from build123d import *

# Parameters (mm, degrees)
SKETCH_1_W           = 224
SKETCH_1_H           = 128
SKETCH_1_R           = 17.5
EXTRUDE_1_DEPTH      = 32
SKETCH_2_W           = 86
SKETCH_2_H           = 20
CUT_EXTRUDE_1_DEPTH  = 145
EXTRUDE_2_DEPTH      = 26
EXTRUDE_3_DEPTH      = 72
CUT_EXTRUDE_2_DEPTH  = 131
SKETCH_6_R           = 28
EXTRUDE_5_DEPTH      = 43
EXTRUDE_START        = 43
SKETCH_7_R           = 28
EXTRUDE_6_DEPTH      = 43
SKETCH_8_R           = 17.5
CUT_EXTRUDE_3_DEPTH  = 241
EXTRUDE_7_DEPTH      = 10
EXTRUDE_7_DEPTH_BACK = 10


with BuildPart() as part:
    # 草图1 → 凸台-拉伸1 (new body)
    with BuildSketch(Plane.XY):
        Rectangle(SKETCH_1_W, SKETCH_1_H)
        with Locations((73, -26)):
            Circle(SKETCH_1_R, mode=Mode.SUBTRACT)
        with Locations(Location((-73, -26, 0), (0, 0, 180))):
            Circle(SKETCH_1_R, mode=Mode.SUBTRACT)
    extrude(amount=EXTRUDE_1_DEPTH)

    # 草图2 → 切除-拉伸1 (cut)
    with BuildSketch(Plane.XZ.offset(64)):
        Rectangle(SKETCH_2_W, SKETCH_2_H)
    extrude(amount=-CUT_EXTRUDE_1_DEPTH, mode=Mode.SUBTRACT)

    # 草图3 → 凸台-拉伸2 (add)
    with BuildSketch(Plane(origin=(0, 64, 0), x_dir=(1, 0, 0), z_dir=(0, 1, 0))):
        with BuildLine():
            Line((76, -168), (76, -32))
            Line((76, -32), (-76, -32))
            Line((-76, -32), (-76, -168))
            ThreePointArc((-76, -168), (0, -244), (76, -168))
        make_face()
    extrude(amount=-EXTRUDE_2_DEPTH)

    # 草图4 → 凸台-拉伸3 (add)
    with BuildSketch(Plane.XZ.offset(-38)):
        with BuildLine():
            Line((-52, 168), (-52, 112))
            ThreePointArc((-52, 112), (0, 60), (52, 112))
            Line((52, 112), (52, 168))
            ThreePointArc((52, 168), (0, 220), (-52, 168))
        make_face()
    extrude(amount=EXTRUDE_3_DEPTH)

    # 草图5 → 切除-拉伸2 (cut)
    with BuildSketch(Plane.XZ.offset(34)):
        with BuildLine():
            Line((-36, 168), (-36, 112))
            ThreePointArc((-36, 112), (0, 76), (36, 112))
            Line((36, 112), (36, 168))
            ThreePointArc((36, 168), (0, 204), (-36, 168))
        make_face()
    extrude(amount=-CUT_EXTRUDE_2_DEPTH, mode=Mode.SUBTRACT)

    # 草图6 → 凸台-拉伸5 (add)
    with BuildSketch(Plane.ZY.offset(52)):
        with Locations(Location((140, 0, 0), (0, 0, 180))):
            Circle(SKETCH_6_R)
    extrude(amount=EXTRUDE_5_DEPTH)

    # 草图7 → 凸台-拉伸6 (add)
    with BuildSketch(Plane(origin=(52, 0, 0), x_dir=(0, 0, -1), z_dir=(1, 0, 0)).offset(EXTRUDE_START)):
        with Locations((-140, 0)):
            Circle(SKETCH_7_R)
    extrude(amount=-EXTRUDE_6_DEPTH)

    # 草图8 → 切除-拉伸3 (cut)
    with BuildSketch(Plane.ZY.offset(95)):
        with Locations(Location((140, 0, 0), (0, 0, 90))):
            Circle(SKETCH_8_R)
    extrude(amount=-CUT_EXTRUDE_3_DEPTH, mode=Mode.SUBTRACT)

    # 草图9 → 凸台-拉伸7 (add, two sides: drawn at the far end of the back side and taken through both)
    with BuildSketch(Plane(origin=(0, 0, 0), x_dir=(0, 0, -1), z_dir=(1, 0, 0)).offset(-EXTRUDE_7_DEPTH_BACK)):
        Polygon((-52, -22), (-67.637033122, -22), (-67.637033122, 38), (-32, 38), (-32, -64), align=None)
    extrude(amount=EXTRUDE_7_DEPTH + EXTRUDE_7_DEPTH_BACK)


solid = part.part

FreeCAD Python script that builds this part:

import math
import FreeCAD as App
import Part
import Sketcher
from FreeCAD import Vector


def add_polygon(sketch, points):
    """Adds a closed chain of lines whose ends are joined by coincident constraints."""
    first, n = sketch.GeometryCount, len(points)
    for a, b in zip(points, points[1:] + points[:1]):
        sketch.addGeometry(Part.LineSegment(App.Vector(*a, 0), App.Vector(*b, 0)), False)
    for i in range(n):
        sketch.addConstraint(Sketcher.Constraint("Coincident", first + i, 2, first + (i + 1) % n, 1))

doc = App.newDocument("Part")
body = doc.addObject("PartDesign::Body", "Body")

sketch1 = doc.addObject("Sketcher::SketchObject", "Sketch")
body.addObject(sketch1)
sketch1.AttachmentSupport = (doc.XY_Plane, [""])
sketch1.MapMode = "FlatFace"
add_polygon(sketch1, [(-112, 64), (-112, -64), (112, -64), (112, 64)])
sketch1.addGeometry(Part.Circle(Vector(-73, -26, 0), Vector(0, 0, 1), 18), False)
sketch1.addGeometry(Part.Circle(Vector(73, -26, 0), Vector(0, 0, 1), 18), False)
sketch1.addConstraint(Sketcher.Constraint("Vertical", 0))
sketch1.addConstraint(Sketcher.Constraint("Horizontal", 1))
sketch1.addConstraint(Sketcher.Constraint("Vertical", 2))
sketch1.addConstraint(Sketcher.Constraint("Horizontal", 3))
sketch1.addConstraint(Sketcher.Constraint("Equal", 4, 5))
sketch1.addConstraint(Sketcher.Constraint("Symmetric", 0, 2, 2, 2, -1, 1))
sketch1.addConstraint(Sketcher.Constraint("Symmetric", 4, 3, 5, 3, -2))
sketch1.addConstraint(Sketcher.Constraint("Diameter", 4, 35.0))
sketch1.addConstraint(Sketcher.Constraint("DistanceX", 1, 1, 1, 2, 224.0))
sketch1.addConstraint(Sketcher.Constraint("DistanceY", 0, 2, 0, 1, 128.0))
sketch1.addConstraint(Sketcher.Constraint("DistanceX", 4, 3, -1, 1, 73.0))
sketch1.addConstraint(Sketcher.Constraint("DistanceY", 4, 3, -1, 1, 26.0))
pad1 = doc.addObject("PartDesign::Pad", "Pad")
body.addObject(pad1)
pad1.Profile = sketch1
pad1.Length = 32

sketch2 = doc.addObject("Sketcher::SketchObject", "Sketch001")
body.addObject(sketch2)
sketch2.AttachmentSupport = (doc.XZ_Plane, [""])
sketch2.MapMode = "FlatFace"
sketch2.AttachmentOffset = App.Placement(Vector(0, 0, 64), App.Rotation())
add_polygon(sketch2, [(-43, 10), (-43, -10), (43, -10), (43, 10)])
sketch2.addConstraint(Sketcher.Constraint("Vertical", 0))
sketch2.addConstraint(Sketcher.Constraint("Horizontal", 1))
sketch2.addConstraint(Sketcher.Constraint("Vertical", 2))
sketch2.addConstraint(Sketcher.Constraint("Horizontal", 3))
sketch2.addConstraint(Sketcher.Constraint("Symmetric", 0, 2, 2, 2, -1, 1))
sketch2.addConstraint(Sketcher.Constraint("DistanceX", 1, 1, 1, 2, 86.0))
sketch2.addConstraint(Sketcher.Constraint("DistanceY", 0, 2, 0, 1, 20.0))
pocket1 = doc.addObject("PartDesign::Pocket", "Pocket")
body.addObject(pocket1)
pocket1.Profile = sketch2
pocket1.Length = 145

sketch3 = doc.addObject("Sketcher::SketchObject", "Sketch002")
body.addObject(sketch3)
sketch3.AttachmentSupport = (doc.XZ_Plane, [""])
sketch3.MapMode = "FlatFace"
sketch3.AttachmentOffset = App.Placement(Vector(0, 0, -64), App.Rotation())
sketch3.addGeometry(Part.LineSegment(Vector(76, 168, 0), Vector(76, 32, 0)), False)
sketch3.addGeometry(Part.LineSegment(Vector(76, 32, 0), Vector(-76, 32, 0)), False)
sketch3.addGeometry(Part.LineSegment(Vector(-76, 32, 0), Vector(-76, 168, 0)), False)
sketch3.addGeometry(Part.ArcOfCircle(Part.Circle(Vector(0, 168, 0), Vector(0, 0, 1), 76), math.radians(0), math.radians(180)), False)
sketch3.addConstraint(Sketcher.Constraint("Coincident", 0, 2, 1, 1))
sketch3.addConstraint(Sketcher.Constraint("Coincident", 1, 2, 2, 1))
sketch3.addConstraint(Sketcher.Constraint("Tangent", 2, 2, 3, 2))
sketch3.addConstraint(Sketcher.Constraint("Tangent", 3, 1, 0, 1))
sketch3.addConstraint(Sketcher.Constraint("Vertical", 0))
sketch3.addConstraint(Sketcher.Constraint("Horizontal", 1))
sketch3.addConstraint(Sketcher.Constraint("Vertical", 2))
sketch3.addConstraint(Sketcher.Constraint("PointOnObject", 3, 3, -2))
sketch3.addConstraint(Sketcher.Constraint("Radius", 3, 76.0))
sketch3.addConstraint(Sketcher.Constraint("DistanceY", 0, 2, 0, 1, 136.0))
sketch3.addConstraint(Sketcher.Constraint("DistanceY", -1, 1, 3, 3, 168.0))
pad2 = doc.addObject("PartDesign::Pad", "Pad001")
body.addObject(pad2)
pad2.Profile = sketch3
pad2.Length = 26

sketch4 = doc.addObject("Sketcher::SketchObject", "Sketch003")
body.addObject(sketch4)
sketch4.AttachmentSupport = (doc.XZ_Plane, [""])
sketch4.MapMode = "FlatFace"
sketch4.AttachmentOffset = App.Placement(Vector(0, 0, -38), App.Rotation())
sketch4.addGeometry(Part.LineSegment(Vector(-52, 168, 0), Vector(-52, 112, 0)), False)
sketch4.addGeometry(Part.ArcOfCircle(Part.Circle(Vector(0, 112, 0), Vector(0, 0, 1), 52), math.radians(180), math.radians(360)), False)
sketch4.addGeometry(Part.LineSegment(Vector(52, 112, 0), Vector(52, 168, 0)), False)
sketch4.addGeometry(Part.ArcOfCircle(Part.Circle(Vector(0, 168, 0), Vector(0, 0, 1), 52), math.radians(0), math.radians(180)), False)
sketch4.addConstraint(Sketcher.Constraint("Tangent", 0, 2, 1, 1))
sketch4.addConstraint(Sketcher.Constraint("Tangent", 1, 2, 2, 1))
sketch4.addConstraint(Sketcher.Constraint("Tangent", 2, 2, 3, 1))
sketch4.addConstraint(Sketcher.Constraint("Tangent", 3, 2, 0, 1))
sketch4.addConstraint(Sketcher.Constraint("Vertical", 0))
sketch4.addConstraint(Sketcher.Constraint("Vertical", 2))
sketch4.addConstraint(Sketcher.Constraint("PointOnObject", 1, 3, -2))
sketch4.addConstraint(Sketcher.Constraint("Radius", 1, 52.0))
sketch4.addConstraint(Sketcher.Constraint("DistanceY", 0, 2, 0, 1, 56.0))
sketch4.addConstraint(Sketcher.Constraint("DistanceY", -1, 1, 1, 3, 112.0))
pad3 = doc.addObject("PartDesign::Pad", "Pad002")
body.addObject(pad3)
pad3.Profile = sketch4
pad3.Length = 72

sketch5 = doc.addObject("Sketcher::SketchObject", "Sketch004")
body.addObject(sketch5)
sketch5.AttachmentSupport = (doc.XZ_Plane, [""])
sketch5.MapMode = "FlatFace"
sketch5.AttachmentOffset = App.Placement(Vector(0, 0, 34), App.Rotation())
sketch5.addGeometry(Part.LineSegment(Vector(-36, 168, 0), Vector(-36, 112, 0)), False)
sketch5.addGeometry(Part.ArcOfCircle(Part.Circle(Vector(0, 112, 0), Vector(0, 0, 1), 36), math.radians(180), math.radians(360)), False)
sketch5.addGeometry(Part.LineSegment(Vector(36, 112, 0), Vector(36, 168, 0)), False)
sketch5.addGeometry(Part.ArcOfCircle(Part.Circle(Vector(0, 168, 0), Vector(0, 0, 1), 36), math.radians(0), math.radians(180)), False)
sketch5.addConstraint(Sketcher.Constraint("Tangent", 0, 2, 1, 1))
sketch5.addConstraint(Sketcher.Constraint("Tangent", 1, 2, 2, 1))
sketch5.addConstraint(Sketcher.Constraint("Tangent", 2, 2, 3, 1))
sketch5.addConstraint(Sketcher.Constraint("Tangent", 3, 2, 0, 1))
sketch5.addConstraint(Sketcher.Constraint("Vertical", 0))
sketch5.addConstraint(Sketcher.Constraint("Vertical", 2))
sketch5.addConstraint(Sketcher.Constraint("PointOnObject", 1, 3, -2))
sketch5.addConstraint(Sketcher.Constraint("Radius", 1, 36.0))
sketch5.addConstraint(Sketcher.Constraint("DistanceY", 0, 2, 0, 1, 56.0))
sketch5.addConstraint(Sketcher.Constraint("DistanceY", -1, 1, 1, 3, 112.0))
pocket2 = doc.addObject("PartDesign::Pocket", "Pocket001")
body.addObject(pocket2)
pocket2.Profile = sketch5
pocket2.Length = 131

sketch6 = doc.addObject("Sketcher::SketchObject", "Sketch005")
body.addObject(sketch6)
sketch6.AttachmentSupport = (doc.YZ_Plane, [""])
sketch6.MapMode = "FlatFace"
sketch6.AttachmentOffset = App.Placement(Vector(0, 0, -52), App.Rotation())
sketch6.addGeometry(Part.Circle(Vector(0, 140, 0), Vector(0, 0, 1), 28), False)
sketch6.addConstraint(Sketcher.Constraint("PointOnObject", 0, 3, -2))
sketch6.addConstraint(Sketcher.Constraint("Diameter", 0, 56.0))
sketch6.addConstraint(Sketcher.Constraint("DistanceY", -1, 1, 0, 3, 140.0))
pad4 = doc.addObject("PartDesign::Pad", "Pad003")
body.addObject(pad4)
pad4.Profile = sketch6
pad4.Length = 43
pad4.Reversed = True

sketch7 = doc.addObject("Sketcher::SketchObject", "Sketch006")
body.addObject(sketch7)
sketch7.AttachmentSupport = (doc.YZ_Plane, [""])
sketch7.MapMode = "FlatFace"
sketch7.AttachmentOffset = App.Placement(Vector(0, 0, 95), App.Rotation())
sketch7.addGeometry(Part.Circle(Vector(0, 140, 0), Vector(0, 0, 1), 28), False)
sketch7.addConstraint(Sketcher.Constraint("PointOnObject", 0, 3, -2))
sketch7.addConstraint(Sketcher.Constraint("Diameter", 0, 56.0))
sketch7.addConstraint(Sketcher.Constraint("DistanceY", -1, 1, 0, 3, 140.0))
pad5 = doc.addObject("PartDesign::Pad", "Pad004")
body.addObject(pad5)
pad5.Profile = sketch7
pad5.Length = 43
pad5.Reversed = True

sketch8 = doc.addObject("Sketcher::SketchObject", "Sketch007")
body.addObject(sketch8)
sketch8.AttachmentSupport = (doc.YZ_Plane, [""])
sketch8.MapMode = "FlatFace"
sketch8.AttachmentOffset = App.Placement(Vector(0, 0, -95), App.Rotation())
sketch8.addGeometry(Part.Circle(Vector(0, 140, 0), Vector(0, 0, 1), 18), False)
sketch8.addConstraint(Sketcher.Constraint("PointOnObject", 0, 3, -2))
sketch8.addConstraint(Sketcher.Constraint("Diameter", 0, 35.0))
sketch8.addConstraint(Sketcher.Constraint("DistanceY", -1, 1, 0, 3, 140.0))
pocket3 = doc.addObject("PartDesign::Pocket", "Pocket002")
body.addObject(pocket3)
pocket3.Profile = sketch8
pocket3.Length = 241
pocket3.Reversed = True

sketch9 = doc.addObject("Sketcher::SketchObject", "Sketch008")
body.addObject(sketch9)
sketch9.AttachmentSupport = (doc.YZ_Plane, [""])
sketch9.MapMode = "FlatFace"
add_polygon(sketch9, [(-22, 68), (-22, 52), (-64, 32), (38, 32), (38, 68)])
sketch9.addConstraint(Sketcher.Constraint("Vertical", 0))
sketch9.addConstraint(Sketcher.Constraint("Horizontal", 2))
sketch9.addConstraint(Sketcher.Constraint("Vertical", 3))
sketch9.addConstraint(Sketcher.Constraint("Horizontal", 4))
sketch9.addConstraint(Sketcher.Constraint("DistanceX", 2, 1, 2, 2, 102.0))
sketch9.addConstraint(Sketcher.Constraint("DistanceX", 4, 2, 4, 1, 60.0))
sketch9.addConstraint(Sketcher.Constraint("DistanceX", 0, 2, -1, 1, 22.0))
sketch9.addConstraint(Sketcher.Constraint("DistanceY", -1, 1, 0, 2, 52.0))
sketch9.addConstraint(Sketcher.Constraint("DistanceY", -1, 1, 1, 2, 32.0))
sketch9.addConstraint(Sketcher.Constraint("DistanceY", 0, 2, 0, 1, 15.637033))
pad6 = doc.addObject("PartDesign::Pad", "Pad005")
body.addObject(pad6)
pad6.Profile = sketch9
pad6.Type = "TwoLengths"
pad6.Length = 10
pad6.Length2 = 10

doc.recompute()
